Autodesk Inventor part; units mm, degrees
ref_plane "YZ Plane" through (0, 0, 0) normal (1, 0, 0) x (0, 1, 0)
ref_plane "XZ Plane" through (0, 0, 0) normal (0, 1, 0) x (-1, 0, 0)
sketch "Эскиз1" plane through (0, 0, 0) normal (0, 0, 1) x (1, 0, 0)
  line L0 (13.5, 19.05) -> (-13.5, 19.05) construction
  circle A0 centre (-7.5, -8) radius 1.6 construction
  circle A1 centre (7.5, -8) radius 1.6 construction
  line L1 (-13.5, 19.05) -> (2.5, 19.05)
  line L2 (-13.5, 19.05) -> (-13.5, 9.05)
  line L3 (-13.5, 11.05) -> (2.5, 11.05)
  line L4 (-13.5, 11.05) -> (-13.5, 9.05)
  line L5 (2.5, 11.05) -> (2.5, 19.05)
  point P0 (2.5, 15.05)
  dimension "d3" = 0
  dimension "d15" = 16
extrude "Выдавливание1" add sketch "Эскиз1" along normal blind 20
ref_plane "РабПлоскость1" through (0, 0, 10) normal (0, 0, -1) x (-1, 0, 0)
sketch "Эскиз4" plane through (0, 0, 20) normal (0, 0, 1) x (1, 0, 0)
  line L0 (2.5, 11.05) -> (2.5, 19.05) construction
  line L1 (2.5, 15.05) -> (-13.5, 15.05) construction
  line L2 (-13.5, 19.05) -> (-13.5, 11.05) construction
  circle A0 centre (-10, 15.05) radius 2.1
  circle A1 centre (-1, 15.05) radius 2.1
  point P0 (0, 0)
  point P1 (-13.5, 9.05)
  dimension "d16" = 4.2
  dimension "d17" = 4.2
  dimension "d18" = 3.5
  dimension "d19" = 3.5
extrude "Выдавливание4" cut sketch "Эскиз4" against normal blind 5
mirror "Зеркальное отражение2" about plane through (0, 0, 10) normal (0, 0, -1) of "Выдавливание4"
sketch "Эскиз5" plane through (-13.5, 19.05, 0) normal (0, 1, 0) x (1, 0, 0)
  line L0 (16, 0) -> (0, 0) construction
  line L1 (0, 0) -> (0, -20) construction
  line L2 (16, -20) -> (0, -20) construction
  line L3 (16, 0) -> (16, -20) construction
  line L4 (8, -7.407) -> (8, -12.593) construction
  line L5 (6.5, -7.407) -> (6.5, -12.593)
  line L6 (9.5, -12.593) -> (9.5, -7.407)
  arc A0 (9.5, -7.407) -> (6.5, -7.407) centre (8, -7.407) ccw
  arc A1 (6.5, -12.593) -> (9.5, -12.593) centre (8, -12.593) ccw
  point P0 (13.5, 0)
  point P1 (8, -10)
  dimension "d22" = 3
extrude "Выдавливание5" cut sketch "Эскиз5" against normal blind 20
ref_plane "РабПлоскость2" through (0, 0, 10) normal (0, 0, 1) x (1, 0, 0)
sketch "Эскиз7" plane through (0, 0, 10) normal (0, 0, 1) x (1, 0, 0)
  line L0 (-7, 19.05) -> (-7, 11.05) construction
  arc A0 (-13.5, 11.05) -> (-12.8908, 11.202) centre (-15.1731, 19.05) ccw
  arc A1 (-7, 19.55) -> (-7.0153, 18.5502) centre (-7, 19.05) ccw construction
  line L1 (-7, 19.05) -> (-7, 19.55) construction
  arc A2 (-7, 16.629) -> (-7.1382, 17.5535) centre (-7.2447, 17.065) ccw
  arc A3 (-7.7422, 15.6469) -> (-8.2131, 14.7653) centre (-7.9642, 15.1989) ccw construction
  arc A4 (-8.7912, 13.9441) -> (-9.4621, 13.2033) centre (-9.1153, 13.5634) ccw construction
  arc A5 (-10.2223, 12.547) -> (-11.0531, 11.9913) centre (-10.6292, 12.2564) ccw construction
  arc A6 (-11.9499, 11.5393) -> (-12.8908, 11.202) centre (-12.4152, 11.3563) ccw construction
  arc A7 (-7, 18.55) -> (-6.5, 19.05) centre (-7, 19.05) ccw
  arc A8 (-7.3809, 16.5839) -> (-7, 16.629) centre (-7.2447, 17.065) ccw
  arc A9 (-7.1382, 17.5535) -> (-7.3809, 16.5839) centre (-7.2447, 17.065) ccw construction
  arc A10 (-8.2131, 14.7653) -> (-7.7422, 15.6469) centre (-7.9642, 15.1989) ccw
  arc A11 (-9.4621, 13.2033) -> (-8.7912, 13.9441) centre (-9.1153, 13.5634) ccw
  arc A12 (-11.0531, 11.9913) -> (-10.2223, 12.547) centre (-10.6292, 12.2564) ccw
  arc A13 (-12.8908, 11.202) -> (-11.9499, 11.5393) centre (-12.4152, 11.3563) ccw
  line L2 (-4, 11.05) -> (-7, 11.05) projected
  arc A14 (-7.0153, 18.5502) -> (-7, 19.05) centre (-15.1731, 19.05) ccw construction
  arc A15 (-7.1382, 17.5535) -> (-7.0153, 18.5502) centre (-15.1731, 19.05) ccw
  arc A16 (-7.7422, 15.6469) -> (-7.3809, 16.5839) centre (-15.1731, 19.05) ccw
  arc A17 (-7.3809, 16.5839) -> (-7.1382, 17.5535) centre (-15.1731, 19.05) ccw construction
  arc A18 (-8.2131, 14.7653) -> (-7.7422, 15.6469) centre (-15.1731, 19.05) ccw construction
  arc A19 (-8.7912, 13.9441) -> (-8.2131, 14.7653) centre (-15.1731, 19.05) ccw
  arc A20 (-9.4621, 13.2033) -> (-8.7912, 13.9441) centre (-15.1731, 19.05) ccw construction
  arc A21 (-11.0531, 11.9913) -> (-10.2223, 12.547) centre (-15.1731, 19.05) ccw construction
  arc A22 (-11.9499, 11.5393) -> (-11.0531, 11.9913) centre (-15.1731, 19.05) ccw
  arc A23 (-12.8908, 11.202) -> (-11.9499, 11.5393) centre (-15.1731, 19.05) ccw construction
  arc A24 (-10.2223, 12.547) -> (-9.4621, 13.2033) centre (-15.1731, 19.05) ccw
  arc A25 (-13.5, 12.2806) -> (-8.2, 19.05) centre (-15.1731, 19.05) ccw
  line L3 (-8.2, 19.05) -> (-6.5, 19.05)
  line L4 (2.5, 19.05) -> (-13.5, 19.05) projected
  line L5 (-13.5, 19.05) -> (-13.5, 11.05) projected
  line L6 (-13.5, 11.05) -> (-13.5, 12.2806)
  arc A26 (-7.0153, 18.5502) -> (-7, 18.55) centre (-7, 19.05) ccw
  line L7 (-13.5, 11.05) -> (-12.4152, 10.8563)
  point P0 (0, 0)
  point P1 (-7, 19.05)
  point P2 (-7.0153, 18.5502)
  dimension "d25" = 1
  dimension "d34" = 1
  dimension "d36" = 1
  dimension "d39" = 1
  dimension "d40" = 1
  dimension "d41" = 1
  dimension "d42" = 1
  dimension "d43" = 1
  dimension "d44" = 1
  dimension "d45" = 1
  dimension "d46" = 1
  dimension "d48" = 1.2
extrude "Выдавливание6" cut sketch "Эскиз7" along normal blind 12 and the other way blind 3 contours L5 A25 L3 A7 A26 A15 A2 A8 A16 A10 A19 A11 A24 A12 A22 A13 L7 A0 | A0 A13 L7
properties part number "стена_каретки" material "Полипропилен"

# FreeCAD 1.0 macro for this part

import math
import FreeCAD as App
import Part
import Sketcher

V = App.Vector

doc = App.newDocument("Part")
params = doc.addObject("Spreadsheet::Sheet", "Params")
for row, (alias, value) in enumerate([
    ("sketch1_width", "16 mm"),
    ("sketch1_height", "8 mm"),
    ("pad1_length", "20 mm"),
    ("sketch2_diameter", "4.2 mm"),
    ("pocket1_length", "5 mm"),
    ("sketch3_radius", "1.5 mm"),
    ("pocket2_length", "20 mm"),
    ("sketch4_radius", "0.5 mm"),
    ("pocket3_length", "12 mm"),
    ("pocket3_length2", "3 mm"),
], start=1):
    params.set(f"A{row}", alias)
    params.set(f"B{row}", "=" + value)
    params.setAlias(f"B{row}", alias)

body = doc.addObject("PartDesign::Body", "Body")

# Sketch on XY plane
sketch1 = body.newObject("Sketcher::SketchObject", "Sketch")
sketch1.AttachmentSupport = (doc.getObject("XY_Plane"), [""])
sketch1.MapMode = "FlatFace"
sketch1.addGeometry(Part.LineSegment(V(2, 19, 0), V(-14, 19, 0)), False)
sketch1.addGeometry(Part.LineSegment(V(-14, 19, 0), V(-14, 11, 0)), False)
sketch1.addGeometry(Part.LineSegment(V(-14, 11, 0), V(2, 11, 0)), False)
sketch1.addGeometry(Part.LineSegment(V(2, 11, 0), V(2, 19, 0)), False)
sketch1.addConstraint(Sketcher.Constraint("Coincident", 0, 2, 1, 1))
sketch1.addConstraint(Sketcher.Constraint("Coincident", 1, 2, 2, 1))
sketch1.addConstraint(Sketcher.Constraint("Coincident", 2, 2, 3, 1))
sketch1.addConstraint(Sketcher.Constraint("Coincident", 3, 2, 0, 1))
sketch1.addConstraint(Sketcher.Constraint("Horizontal", 0))
sketch1.addConstraint(Sketcher.Constraint("Vertical", 1))
sketch1.addConstraint(Sketcher.Constraint("Horizontal", 2))
sketch1.addConstraint(Sketcher.Constraint("Vertical", 3))
sketch1.addConstraint(Sketcher.Constraint("DistanceX", 0, 2, 0, 1, 16.0))
sketch1.addConstraint(Sketcher.Constraint("DistanceY", 1, 2, 1, 1, 8.0))
sketch1.addConstraint(Sketcher.Constraint("DistanceX", 0, 2, -1, 1, 13.5))
sketch1.addConstraint(Sketcher.Constraint("DistanceY", -1, 1, 0, 2, 19.05))
sketch1.setExpression("Constraints[8]", "Params.sketch1_width")
sketch1.setExpression("Constraints[9]", "Params.sketch1_height")
pad1 = body.newObject("PartDesign::Pad", "Pad")
pad1.Profile = sketch1
pad1.setExpression("Length", "Params.pad1_length")

# Sketch on XY plane
sketch2 = body.newObject("Sketcher::SketchObject", "Sketch001")
sketch2.AttachmentSupport = (doc.getObject("XY_Plane"), [""])
sketch2.MapMode = "FlatFace"
sketch2.AttachmentOffset = App.Placement(V(0, 0, 20), App.Rotation())
sketch2.addGeometry(Part.Circle(V(-10, 15.1, 0), V(0, 0, 1), 2.1), False)
sketch2.addGeometry(Part.Circle(V(-1, 15.1, 0), V(0, 0, 1), 2.1), False)
sketch2.addConstraint(Sketcher.Constraint("Equal", 0, 1))
sketch2.addConstraint(Sketcher.Constraint("Horizontal", 0, 3, 1, 3))
sketch2.addConstraint(Sketcher.Constraint("Diameter", 0, 4.2))
sketch2.addConstraint(Sketcher.Constraint("DistanceX", 0, 3, -1, 1, 10.0))
sketch2.addConstraint(Sketcher.Constraint("DistanceX", 1, 3, -1, 1, 1.0))
sketch2.addConstraint(Sketcher.Constraint("DistanceY", -1, 1, 0, 3, 15.05))
sketch2.setExpression("Constraints[2]", "Params.sketch2_diameter")
pocket1 = body.newObject("PartDesign::Pocket", "Pocket")
pocket1.Profile = sketch2
pocket1.setExpression("Length", "Params.pocket1_length")
doc.recompute()

datumplane = body.newObject("PartDesign::Plane", "DatumPlane")
datumplane.AttachmentSupport = (doc.getObject("XY_Plane"), [""])
datumplane.MapMode = "FlatFace"
datumplane.AttachmentOffset = App.Placement(V(0, 0, 10), App.Rotation())
mirrored = body.newObject("PartDesign::Mirrored", "Mirrored")
mirrored.Originals = [pocket1]
mirrored.MirrorPlane = (datumplane, [""])
body.Tip = mirrored

# Sketch on XZ plane
sketch3 = body.newObject("Sketcher::SketchObject", "Sketch002")
sketch3.AttachmentSupport = (doc.getObject("XZ_Plane"), [""])
sketch3.MapMode = "FlatFace"
sketch3.AttachmentOffset = App.Placement(V(0, 0, -19.05), App.Rotation())
sketch3.addGeometry(Part.ArcOfCircle(Part.Circle(V(-5.5, 7.4, 0), V(0, 0, 1), 1.5), math.radians(180), math.radians(360)), False)
sketch3.addGeometry(Part.LineSegment(V(-7, 7.4, 0), V(-7, 12.6, 0)), False)
sketch3.addGeometry(Part.ArcOfCircle(Part.Circle(V(-5.5, 12.6, 0), V(0, 0, 1), 1.5), math.radians(0), math.radians(180)), False)
sketch3.addGeometry(Part.LineSegment(V(-4, 12.6, 0), V(-4, 7.4, 0)), False)
sketch3.addConstraint(Sketcher.Constraint("Tangent", 0, 1, 1, 1))
sketch3.addConstraint(Sketcher.Constraint("Tangent", 1, 2, 2, 2))
sketch3.addConstraint(Sketcher.Constraint("Tangent", 2, 1, 3, 1))
sketch3.addConstraint(Sketcher.Constraint("Tangent", 3, 2, 0, 2))
sketch3.addConstraint(Sketcher.Constraint("Vertical", 1))
sketch3.addConstraint(Sketcher.Constraint("Vertical", 3))
sketch3.addConstraint(Sketcher.Constraint("Radius", 0, 1.5))
sketch3.addConstraint(Sketcher.Constraint("DistanceX", 0, 1, -1, 1, 7.0))
sketch3.addConstraint(Sketcher.Constraint("DistanceY", 1, 1, 1, 2, 5.186))
sketch3.addConstraint(Sketcher.Constraint("DistanceY", -1, 1, 0, 3, 7.407))
sketch3.setExpression("Constraints[6]", "Params.sketch3_radius")
pocket2 = body.newObject("PartDesign::Pocket", "Pocket001")
pocket2.Profile = sketch3
pocket2.setExpression("Length", "Params.pocket2_length")
pocket2.Reversed = True

# Sketch on XY plane
sketch4 = body.newObject("Sketcher::SketchObject", "Sketch003")
sketch4.AttachmentSupport = (doc.getObject("XY_Plane"), [""])
sketch4.MapMode = "FlatFace"
sketch4.AttachmentOffset = App.Placement(V(0, 0, 10), App.Rotation())
sketch4.addGeometry(Part.LineSegment(V(-13.5, 12.281, 0), V(-13.5, 11.05, 0)), False)
sketch4.addGeometry(Part.LineSegment(V(-13.5, 11.05, 0), V(-12.415, 10.856, 0)), False)
sketch4.addGeometry(Part.ArcOfCircle(Part.Circle(V(-12.415, 11.356, 0), V(0, 0, 1), 0.5), math.radians(-90), math.radians(21)), False)
sketch4.addGeometry(Part.ArcOfCircle(Part.Circle(V(-15.173, 19.05, 0), V(0, 0, 1), 8.173), math.radians(-66.77), math.radians(-59.73)), False)
sketch4.addGeometry(Part.ArcOfCircle(Part.Circle(V(-10.629, 12.256, 0), V(0, 0, 1), 0.5), math.radians(-148), math.radians(36)), False)
sketch4.addGeometry(Part.ArcOfCircle(Part.Circle(V(-15.173, 19.05, 0), V(0, 0, 1), 8.173), math.radians(-52.72), math.radians(-45.67)), False)
sketch4.addGeometry(Part.ArcOfCircle(Part.Circle(V(-9.115, 13.563, 0), V(0, 0, 1), 0.5), math.radians(-134), math.radians(50)), False)
sketch4.addGeometry(Part.ArcOfCircle(Part.Circle(V(-15.191, 19.064, 0), V(0, 0, 1), 8.196), math.radians(-38.66), math.radians(-31.63)), False)
sketch4.addGeometry(Part.ArcOfCircle(Part.Circle(V(-7.964, 15.199, 0), V(0, 0, 1), 0.5), math.radians(-120), math.radians(64)), False)
sketch4.addGeometry(Part.ArcOfCircle(Part.Circle(V(-15.183, 19.054, 0), V(0, 0, 1), 8.184), math.radians(-24.6), math.radians(-17.57)), False)
sketch4.addGeometry(Part.ArcOfCircle(Part.Circle(V(-7.245, 17.065, 0), V(0, 0, 1), 0.5), math.radians(-106), math.radians(-61)), False)
sketch4.addGeometry(Part.ArcOfCircle(Part.Circle(V(-7.245, 17.065, 0), V(0, 0, 1), 0.5), math.radians(-61), math.radians(78)), False)
sketch4.addGeometry(Part.ArcOfCircle(Part.Circle(V(-15.179, 19.051, 0), V(0, 0, 1), 8.179), math.radians(-10.55), math.radians(-3.51)), False)
sketch4.addGeometry(Part.ArcOfCircle(Part.Circle(V(-7.003, 18.937, 0), V(0, 0, 1), 0.387), math.radians(-91.88), math.radians(-89.62)), False)
sketch4.addGeometry(Part.ArcOfCircle(Part.Circle(V(-7, 19.05, 0), V(0, 0, 1), 0.5), math.radians(-90), math.radians(0)), False)
sketch4.addGeometry(Part.LineSegment(V(-6.5, 19.05, 0), V(-8.2, 19.05, 0)), False)
sketch4.addGeometry(Part.ArcOfCircle(Part.Circle(V(-15.173, 19.05, 0), V(0, 0, 1), 6.973), math.radians(-76), math.radians(0)), False)
sketch4.addConstraint(Sketcher.Constraint("Coincident", 0, 2, 1, 1))
sketch4.addConstraint(Sketcher.Constraint("Coincident", 1, 2, 2, 1))
sketch4.addConstraint(Sketcher.Constraint("Coincident", 2, 2, 3, 1))
sketch4.addConstraint(Sketcher.Constraint("Coincident", 3, 2, 4, 1))
sketch4.addConstraint(Sketcher.Constraint("Coincident", 4, 2, 5, 1))
sketch4.addConstraint(Sketcher.Constraint("Coincident", 5, 2, 6, 1))
sketch4.addConstraint(Sketcher.Constraint("Coincident", 6, 2, 7, 1))
sketch4.addConstraint(Sketcher.Constraint("Coincident", 7, 2, 8, 1))
sketch4.addConstraint(Sketcher.Constraint("Coincident", 8, 2, 9, 1))
sketch4.addConstraint(Sketcher.Constraint("Coincident", 9, 2, 10, 1))
sketch4.addConstraint(Sketcher.Constraint("Tangent", 10, 2, 11, 1))
sketch4.addConstraint(Sketcher.Constraint("Coincident", 11, 2, 12, 1))
sketch4.addConstraint(Sketcher.Constraint("Coincident", 12, 2, 13, 1))
sketch4.addConstraint(Sketcher.Constraint("Coincident", 13, 2, 14, 1))
sketch4.addConstraint(Sketcher.Constraint("Coincident", 14, 2, 15, 1))
sketch4.addConstraint(Sketcher.Constraint("Coincident", 15, 2, 16, 2))
sketch4.addConstraint(Sketcher.Constraint("Coincident", 16, 1, 0, 1))
sketch4.addConstraint(Sketcher.Constraint("Vertical", 0))
sketch4.addConstraint(Sketcher.Constraint("Horizontal", 15))
sketch4.addConstraint(Sketcher.Constraint("Coincident", 5, 3, 3, 3))
sketch4.addConstraint(Sketcher.Constraint("Coincident", 16, 3, 3, 3))
sketch4.addConstraint(Sketcher.Constraint("Equal", 2, 4))
sketch4.addConstraint(Sketcher.Constraint("Equal", 3, 5))
sketch4.addConstraint(Sketcher.Constraint("Equal", 4, 6))
sketch4.addConstraint(Sketcher.Constraint("Equal", 6, 8))
sketch4.addConstraint(Sketcher.Constraint("Equal", 8, 10))
sketch4.addConstraint(Sketcher.Constraint("Equal", 10, 11))
sketch4.addConstraint(Sketcher.Constraint("Equal", 11, 14))
sketch4.addConstraint(Sketcher.Constraint("Horizontal", 5, 3, 14, 3))
sketch4.addConstraint(Sketcher.Constraint("Horizontal", 16, 3, 14, 2))
sketch4.addConstraint(Sketcher.Constraint("Vertical", 2, 3, 1, 2))
sketch4.addConstraint(Sketcher.Constraint("Vertical", 14, 3, 10, 2))
sketch4.addConstraint(Sketcher.Constraint("Vertical", 10, 2, 13, 2))
sketch4.addConstraint(Sketcher.Constraint("Radius", 2, 0.5))
sketch4.addConstraint(Sketcher.Constraint("DistanceX", 15, 2, 14, 3, 1.2))
sketch4.addConstraint(Sketcher.Constraint("DistanceX", 14, 3, -1, 1, 7.0))
sketch4.addConstraint(Sketcher.Constraint("Radius", 5, 8.173))
sketch4.addConstraint(Sketcher.Constraint("Radius", 9, 8.184))
sketch4.addConstraint(Sketcher.Constraint("Radius", 12, 8.179))
sketch4.addConstraint(Sketcher.Constraint("Radius", 16, 6.973))
sketch4.addConstraint(Sketcher.Constraint("DistanceY", 0, 2, 3, 3, 8.0))
sketch4.addConstraint(Sketcher.Constraint("DistanceX", 0, 2, -1, 1, 13.5))
sketch4.addConstraint(Sketcher.Constraint("Radius", 7, 8.1957))
sketch4.addConstraint(Sketcher.Constraint("Radius", 13, 0.3872))
sketch4.addConstraint(Sketcher.Constraint("DistanceY", 2, 3, 4, 3, 0.9))
sketch4.addConstraint(Sketcher.Constraint("DistanceX", 2, 3, 6, 3, 3.3))
sketch4.addConstraint(Sketcher.Constraint("DistanceY", -1, 1, 3, 3, 19.05))
sketch4.addConstraint(Sketcher.Constraint("DistanceX", 2, 2, -1, 1, 11.95))
sketch4.addConstraint(Sketcher.Constraint("DistanceX", 9, 3, 3, 3, 0.01))
sketch4.addConstraint(Sketcher.Constraint("DistanceY", 5, 2, 6, 3, 0.36))
sketch4.addConstraint(Sketcher.Constraint("DistanceY", 8, 3, 10, 2, 1.43))
sketch4.addConstraint(Sketcher.Constraint("Distance", 1, 1.102))
sketch4.addConstraint(Sketcher.Constraint("DistanceY", -1, 1, 8, 3, 15.199))
sketch4.addConstraint(Sketcher.Constraint("DistanceY", -1, 1, 10, 3, 17.065))
sketch4.addConstraint(Sketcher.Constraint("DistanceX", 12, 3, -1, 1, 15.179))
sketch4.addConstraint(Sketcher.Constraint("DistanceY", -1, 1, 12, 3, 19.051))
sketch4.addConstraint(Sketcher.Constraint("DistanceX", 3, 2, -1, 1, 11.053))
sketch4.addConstraint(Sketcher.Constraint("DistanceY", -1, 1, 6, 2, 13.944))
sketch4.addConstraint(Sketcher.Constraint("DistanceX", 7, 2, -1, 1, 8.213))
sketch4.addConstraint(Sketcher.Constraint("DistanceX", 9, 2, -1, 1, 7.381))
sketch4.addConstraint(Sketcher.Constraint("DistanceX", 7, 3, 3, 3, 0.018))
sketch4.addConstraint(Sketcher.Constraint("DistanceX", 10, 3, 13, 3, 0.242))
sketch4.setExpression("Constraints[33]", "Params.sketch4_radius")
pocket3 = body.newObject("PartDesign::Pocket", "Pocket002")
pocket3.Profile = sketch4
pocket3.Type = "TwoLengths"
pocket3.setExpression("Length", "Params.pocket3_length")
pocket3.setExpression("Length2", "Params.pocket3_length2")
pocket3.Reversed = True

doc.recompute()
